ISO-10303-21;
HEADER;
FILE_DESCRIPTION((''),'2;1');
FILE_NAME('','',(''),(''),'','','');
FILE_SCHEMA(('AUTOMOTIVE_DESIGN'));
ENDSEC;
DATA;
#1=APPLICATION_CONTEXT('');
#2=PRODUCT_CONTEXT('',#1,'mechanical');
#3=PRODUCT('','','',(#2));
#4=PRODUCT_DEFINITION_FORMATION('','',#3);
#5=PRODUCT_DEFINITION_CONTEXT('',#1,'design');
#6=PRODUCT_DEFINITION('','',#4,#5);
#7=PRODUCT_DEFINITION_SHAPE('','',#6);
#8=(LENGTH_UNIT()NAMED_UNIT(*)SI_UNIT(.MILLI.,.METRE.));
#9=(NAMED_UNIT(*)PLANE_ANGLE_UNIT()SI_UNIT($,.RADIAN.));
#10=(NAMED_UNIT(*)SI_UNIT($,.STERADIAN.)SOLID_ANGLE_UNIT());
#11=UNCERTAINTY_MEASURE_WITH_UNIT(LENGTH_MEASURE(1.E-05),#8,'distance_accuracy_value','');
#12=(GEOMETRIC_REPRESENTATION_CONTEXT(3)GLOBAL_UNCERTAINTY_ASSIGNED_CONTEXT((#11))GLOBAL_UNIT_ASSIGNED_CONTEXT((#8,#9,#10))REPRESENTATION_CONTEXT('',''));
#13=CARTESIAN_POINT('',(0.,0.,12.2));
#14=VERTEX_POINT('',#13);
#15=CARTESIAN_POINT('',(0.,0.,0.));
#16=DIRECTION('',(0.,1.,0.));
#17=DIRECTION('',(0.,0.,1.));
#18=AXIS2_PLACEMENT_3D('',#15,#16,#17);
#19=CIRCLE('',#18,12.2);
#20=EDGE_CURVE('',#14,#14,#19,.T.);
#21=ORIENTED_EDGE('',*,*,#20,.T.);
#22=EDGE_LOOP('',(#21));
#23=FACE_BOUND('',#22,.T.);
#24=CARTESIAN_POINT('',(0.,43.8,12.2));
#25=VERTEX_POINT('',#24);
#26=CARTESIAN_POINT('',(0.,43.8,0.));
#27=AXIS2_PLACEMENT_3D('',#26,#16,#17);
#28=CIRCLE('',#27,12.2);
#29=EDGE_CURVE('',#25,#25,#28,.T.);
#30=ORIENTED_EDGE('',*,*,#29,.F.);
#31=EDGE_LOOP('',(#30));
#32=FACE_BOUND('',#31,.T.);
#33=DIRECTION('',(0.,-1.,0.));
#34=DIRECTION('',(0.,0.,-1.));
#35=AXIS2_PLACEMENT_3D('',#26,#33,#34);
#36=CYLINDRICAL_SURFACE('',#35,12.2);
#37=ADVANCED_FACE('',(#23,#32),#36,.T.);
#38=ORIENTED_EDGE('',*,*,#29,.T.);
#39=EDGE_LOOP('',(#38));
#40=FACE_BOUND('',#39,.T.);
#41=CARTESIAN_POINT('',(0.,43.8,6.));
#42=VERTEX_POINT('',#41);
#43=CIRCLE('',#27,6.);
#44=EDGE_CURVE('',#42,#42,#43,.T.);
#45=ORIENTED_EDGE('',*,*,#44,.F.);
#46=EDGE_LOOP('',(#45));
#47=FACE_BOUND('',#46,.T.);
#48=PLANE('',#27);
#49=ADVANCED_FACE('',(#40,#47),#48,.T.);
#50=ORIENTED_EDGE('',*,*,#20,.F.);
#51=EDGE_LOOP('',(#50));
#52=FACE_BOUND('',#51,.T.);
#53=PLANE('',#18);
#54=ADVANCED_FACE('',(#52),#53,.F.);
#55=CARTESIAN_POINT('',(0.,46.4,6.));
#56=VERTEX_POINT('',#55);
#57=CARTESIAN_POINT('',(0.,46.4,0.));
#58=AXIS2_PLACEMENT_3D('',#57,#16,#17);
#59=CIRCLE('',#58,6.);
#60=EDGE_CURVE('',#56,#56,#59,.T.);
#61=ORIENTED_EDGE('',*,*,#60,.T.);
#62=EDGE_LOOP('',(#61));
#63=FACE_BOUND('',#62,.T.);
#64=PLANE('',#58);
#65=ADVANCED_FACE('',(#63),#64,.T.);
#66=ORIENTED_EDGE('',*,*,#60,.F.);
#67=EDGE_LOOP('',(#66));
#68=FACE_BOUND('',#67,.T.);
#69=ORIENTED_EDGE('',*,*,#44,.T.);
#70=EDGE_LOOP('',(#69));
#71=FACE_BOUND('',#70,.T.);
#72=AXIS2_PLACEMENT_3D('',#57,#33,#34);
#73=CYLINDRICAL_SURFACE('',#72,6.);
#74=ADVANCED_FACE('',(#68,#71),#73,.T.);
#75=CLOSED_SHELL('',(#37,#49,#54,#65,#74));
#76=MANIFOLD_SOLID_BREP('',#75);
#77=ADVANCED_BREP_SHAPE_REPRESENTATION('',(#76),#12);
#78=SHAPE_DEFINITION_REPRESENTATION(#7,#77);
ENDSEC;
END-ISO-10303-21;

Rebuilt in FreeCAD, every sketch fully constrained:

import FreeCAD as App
import Part
import Sketcher
Q = App.Units.Quantity

doc = App.newDocument("Part")
body = doc.addObject("PartDesign::Body", "Body")

# Sketch on XZ plane
sketch1 = body.newObject("Sketcher::SketchObject", "Sketch")
sketch1.AttachmentSupport = (doc.getObject("XZ_Plane"), [""])
sketch1.MapMode = "FlatFace"
sketch1.addGeometry(Part.Circle(App.Vector(0, 0, 0), App.Vector(0, 0, 1), 12.2), False)
sketch1.addConstraint([
    Sketcher.Constraint("Coincident", 0, 3, -1, 1),
    Sketcher.Constraint("Diameter", 0, Q("24.4 mm")),
])
pad1 = body.newObject("PartDesign::Pad", "Pad")
pad1.Profile = sketch1
pad1.Length = 43.8
pad1.Reversed = True

# Sketch on XZ plane
sketch2 = body.newObject("Sketcher::SketchObject", "Sketch001")
sketch2.AttachmentSupport = (doc.getObject("XZ_Plane"), [""])
sketch2.MapMode = "FlatFace"
sketch2.AttachmentOffset = App.Placement(App.Vector(0, 0, -43.8), App.Rotation())
sketch2.addGeometry(Part.Circle(App.Vector(0, 0, 0), App.Vector(0, 0, 1), 6), False)
sketch2.addConstraint([
    Sketcher.Constraint("Coincident", 0, 3, -1, 1),
    Sketcher.Constraint("Diameter", 0, Q("12 mm")),
])
pad2 = body.newObject("PartDesign::Pad", "Pad001")
pad2.Profile = sketch2
pad2.Length = 2.6
pad2.Reversed = True

doc.recompute()
